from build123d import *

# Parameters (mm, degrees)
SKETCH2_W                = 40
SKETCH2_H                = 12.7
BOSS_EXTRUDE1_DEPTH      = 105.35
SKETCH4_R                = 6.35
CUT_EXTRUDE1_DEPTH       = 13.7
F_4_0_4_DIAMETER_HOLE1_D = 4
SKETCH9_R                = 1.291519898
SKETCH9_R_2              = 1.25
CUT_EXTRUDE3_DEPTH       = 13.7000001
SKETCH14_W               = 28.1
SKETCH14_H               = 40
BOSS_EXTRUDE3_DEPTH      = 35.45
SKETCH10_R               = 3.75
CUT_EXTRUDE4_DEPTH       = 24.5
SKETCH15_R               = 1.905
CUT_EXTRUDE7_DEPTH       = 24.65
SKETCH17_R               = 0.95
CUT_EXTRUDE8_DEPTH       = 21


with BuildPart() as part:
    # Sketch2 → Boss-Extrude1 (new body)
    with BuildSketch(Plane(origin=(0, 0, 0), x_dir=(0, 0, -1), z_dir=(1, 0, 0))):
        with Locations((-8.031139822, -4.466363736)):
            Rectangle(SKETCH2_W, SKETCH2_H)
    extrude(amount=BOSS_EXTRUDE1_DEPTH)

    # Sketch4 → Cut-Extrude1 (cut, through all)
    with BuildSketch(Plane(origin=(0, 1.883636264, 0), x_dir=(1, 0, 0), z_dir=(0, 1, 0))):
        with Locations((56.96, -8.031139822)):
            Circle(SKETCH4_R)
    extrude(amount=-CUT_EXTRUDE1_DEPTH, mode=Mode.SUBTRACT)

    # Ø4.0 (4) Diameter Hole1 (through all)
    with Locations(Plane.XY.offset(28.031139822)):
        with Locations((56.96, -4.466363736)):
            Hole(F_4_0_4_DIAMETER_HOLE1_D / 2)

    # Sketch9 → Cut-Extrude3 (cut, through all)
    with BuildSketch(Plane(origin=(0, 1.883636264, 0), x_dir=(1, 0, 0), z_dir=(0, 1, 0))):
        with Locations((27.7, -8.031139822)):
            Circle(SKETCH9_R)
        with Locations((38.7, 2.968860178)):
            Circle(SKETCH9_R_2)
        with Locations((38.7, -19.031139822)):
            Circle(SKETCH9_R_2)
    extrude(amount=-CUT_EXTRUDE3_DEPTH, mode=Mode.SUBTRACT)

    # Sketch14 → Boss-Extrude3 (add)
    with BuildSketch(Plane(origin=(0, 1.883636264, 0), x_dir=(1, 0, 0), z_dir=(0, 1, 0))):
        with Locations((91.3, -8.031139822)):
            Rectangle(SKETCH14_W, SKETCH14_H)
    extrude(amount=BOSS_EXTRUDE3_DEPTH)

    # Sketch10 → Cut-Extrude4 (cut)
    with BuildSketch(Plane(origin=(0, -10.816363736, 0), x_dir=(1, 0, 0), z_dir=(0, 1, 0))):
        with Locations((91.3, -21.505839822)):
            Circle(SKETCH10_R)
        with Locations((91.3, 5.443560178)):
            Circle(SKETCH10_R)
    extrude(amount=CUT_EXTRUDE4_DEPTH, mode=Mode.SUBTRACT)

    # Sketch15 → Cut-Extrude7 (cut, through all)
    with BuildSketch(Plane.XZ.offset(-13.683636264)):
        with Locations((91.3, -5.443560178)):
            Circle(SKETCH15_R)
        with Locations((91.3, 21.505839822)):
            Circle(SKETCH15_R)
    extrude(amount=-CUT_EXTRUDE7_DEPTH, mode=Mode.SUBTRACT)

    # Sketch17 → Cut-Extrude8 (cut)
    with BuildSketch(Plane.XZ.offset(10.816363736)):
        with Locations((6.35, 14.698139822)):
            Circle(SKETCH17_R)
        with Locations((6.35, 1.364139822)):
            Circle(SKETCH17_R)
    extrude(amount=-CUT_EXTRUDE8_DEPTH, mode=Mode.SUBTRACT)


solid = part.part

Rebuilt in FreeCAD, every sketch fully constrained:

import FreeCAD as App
import Part
import Sketcher
Q = App.Units.Quantity

doc = App.newDocument("Part")
body = doc.addObject("PartDesign::Body", "Body")

sketch1 = doc.addObject("Sketcher::SketchObject", "Sketch")
body.addObject(sketch1)
sketch1.AttachmentSupport = (doc.YZ_Plane, [""])
sketch1.MapMode = "FlatFace"
sketch1.addGeometry([
    Part.LineSegment(App.Vector(1.883636, 28.03114, 0), App.Vector(-10.816364, 28.03114, 0)),
    Part.LineSegment(App.Vector(-10.816364, 28.03114, 0), App.Vector(-10.816364, -11.96886, 0)),
    Part.LineSegment(App.Vector(-10.816364, -11.96886, 0), App.Vector(1.883636, -11.96886, 0)),
    Part.LineSegment(App.Vector(1.883636, -11.96886, 0), App.Vector(1.883636, 28.03114, 0)),
], False)
sketch1.addConstraint([
    Sketcher.Constraint("Coincident", 0, 2, 1, 1),
    Sketcher.Constraint("Coincident", 1, 2, 2, 1),
    Sketcher.Constraint("Coincident", 2, 2, 3, 1),
    Sketcher.Constraint("Coincident", 3, 2, 0, 1),
    Sketcher.Constraint("Horizontal", 0),
    Sketcher.Constraint("Vertical", 1),
    Sketcher.Constraint("Horizontal", 2),
    Sketcher.Constraint("Vertical", 3),
    Sketcher.Constraint("DistanceY", 1, 2, 1, 1, Q("40 mm")),
    Sketcher.Constraint("DistanceX", 0, 2, 0, 1, Q("12.7 mm")),
    Sketcher.Constraint("DistanceY", -1, 1, 0, 2, Q("28.03114 mm")),
    Sketcher.Constraint("DistanceX", 0, 2, -1, 1, Q("10.816364 mm")),
])
pad1 = doc.addObject("PartDesign::Pad", "Pad")
body.addObject(pad1)
pad1.Profile = sketch1
pad1.Length = 105.35

sketch2 = doc.addObject("Sketcher::SketchObject", "Sketch001")
body.addObject(sketch2)
sketch2.AttachmentSupport = (doc.XZ_Plane, [""])
sketch2.MapMode = "FlatFace"
sketch2.AttachmentOffset = App.Placement(App.Vector(0, 0, -1.883636), App.Rotation())
sketch2.addGeometry(Part.Circle(App.Vector(56.96, 8.03114, 0), App.Vector(0, 0, 1), 6.35), False)
sketch2.addConstraint([
    Sketcher.Constraint("Diameter", 0, Q("12.7 mm")),
    Sketcher.Constraint("DistanceX", -1, 1, 0, 3, Q("56.96 mm")),
    Sketcher.Constraint("DistanceY", -1, 1, 0, 3, Q("8.03114 mm")),
])
pocket1 = doc.addObject("PartDesign::Pocket", "Pocket")
body.addObject(pocket1)
pocket1.Profile = sketch2
pocket1.Type = "ThroughAll"
pocket1.Reversed = True

sketch3 = doc.addObject("Sketcher::SketchObject", "Sketch002")
body.addObject(sketch3)
sketch3.AttachmentSupport = (doc.XY_Plane, [""])
sketch3.MapMode = "FlatFace"
sketch3.AttachmentOffset = App.Placement(App.Vector(0, 0, 28.03114), App.Rotation())
sketch3.addGeometry(Part.Circle(App.Vector(56.96, -4.466364, 0), App.Vector(0, 0, 1), 2), False)
sketch3.addConstraint([
    Sketcher.Constraint("Diameter", 0, Q("4 mm")),
    Sketcher.Constraint("DistanceX", -1, 1, 0, 3, Q("56.96 mm")),
    Sketcher.Constraint("DistanceY", 0, 3, -1, 1, Q("4.466364 mm")),
])
doc.recompute()
hole = doc.addObject("PartDesign::Hole", "Hole")
body.addObject(hole)
hole.Profile = sketch3
hole.ThreadType = "None"
hole.Diameter = 4
hole.DepthType = "ThroughAll"

sketch4 = doc.addObject("Sketcher::SketchObject", "Sketch003")
body.addObject(sketch4)
sketch4.AttachmentSupport = (doc.XZ_Plane, [""])
sketch4.MapMode = "FlatFace"
sketch4.AttachmentOffset = App.Placement(App.Vector(0, 0, -1.883636), App.Rotation())
sketch4.addGeometry([
    Part.Circle(App.Vector(27.7, 8.03114, 0), App.Vector(0, 0, 1), 1.29152),
    Part.Circle(App.Vector(38.7, -2.96886, 0), App.Vector(0, 0, 1), 1.25),
    Part.Circle(App.Vector(38.7, 19.03114, 0), App.Vector(0, 0, 1), 1.25),
], False)
sketch4.addConstraint([
    Sketcher.Constraint("Equal", 1, 2),
    Sketcher.Constraint("Vertical", 1, 3, 2, 3),
    Sketcher.Constraint("Diameter", 1, Q("2.5 mm")),
    Sketcher.Constraint("DistanceX", 0, 3, 1, 3, Q("11 mm")),
    Sketcher.Constraint("DistanceY", 1, 3, 0, 3, Q("11 mm")),
    Sketcher.Constraint("DistanceY", 0, 3, 2, 3, Q("11 mm")),
    Sketcher.Constraint("DistanceX", -1, 1, 0, 3, Q("27.7 mm")),
    Sketcher.Constraint("Diameter", 0, Q("2.58304 mm")),
    Sketcher.Constraint("DistanceY", -1, 1, 0, 3, Q("8.03114 mm")),
])
pocket2 = doc.addObject("PartDesign::Pocket", "Pocket001")
body.addObject(pocket2)
pocket2.Profile = sketch4
pocket2.Type = "ThroughAll"
pocket2.Reversed = True

sketch5 = doc.addObject("Sketcher::SketchObject", "Sketch004")
body.addObject(sketch5)
sketch5.AttachmentSupport = (doc.XZ_Plane, [""])
sketch5.MapMode = "FlatFace"
sketch5.AttachmentOffset = App.Placement(App.Vector(0, 0, -1.883636), App.Rotation())
sketch5.addGeometry([
    Part.LineSegment(App.Vector(77.25, -11.96886, 0), App.Vector(77.25, 28.03114, 0)),
    Part.LineSegment(App.Vector(77.25, 28.03114, 0), App.Vector(105.35, 28.03114, 0)),
    Part.LineSegment(App.Vector(105.35, 28.03114, 0), App.Vector(105.35, -11.96886, 0)),
    Part.LineSegment(App.Vector(105.35, -11.96886, 0), App.Vector(77.25, -11.96886, 0)),
], False)
sketch5.addConstraint([
    Sketcher.Constraint("Coincident", 0, 2, 1, 1),
    Sketcher.Constraint("Coincident", 1, 2, 2, 1),
    Sketcher.Constraint("Coincident", 2, 2, 3, 1),
    Sketcher.Constraint("Coincident", 3, 2, 0, 1),
    Sketcher.Constraint("Vertical", 0),
    Sketcher.Constraint("Horizontal", 1),
    Sketcher.Constraint("Vertical", 2),
    Sketcher.Constraint("Horizontal", 3),
    Sketcher.Constraint("DistanceY", 0, 1, 0, 2, Q("40 mm")),
    Sketcher.Constraint("DistanceX", 1, 1, 1, 2, Q("28.1 mm")),
    Sketcher.Constraint("DistanceX", -1, 1, 0, 2, Q("77.25 mm")),
    Sketcher.Constraint("DistanceY", -1, 1, 0, 2, Q("28.03114 mm")),
])
pad2 = doc.addObject("PartDesign::Pad", "Pad001")
body.addObject(pad2)
pad2.Profile = sketch5
pad2.Length = 35.45
pad2.Reversed = True

sketch6 = doc.addObject("Sketcher::SketchObject", "Sketch005")
body.addObject(sketch6)
sketch6.AttachmentSupport = (doc.XZ_Plane, [""])
sketch6.MapMode = "FlatFace"
sketch6.AttachmentOffset = App.Placement(App.Vector(0, 0, 10.816364), App.Rotation())
sketch6.addGeometry([
    Part.Circle(App.Vector(91.3, 21.50584, 0), App.Vector(0, 0, 1), 3.75),
    Part.Circle(App.Vector(91.3, -5.44356, 0), App.Vector(0, 0, 1), 3.75),
], False)
sketch6.addConstraint([
    Sketcher.Constraint("Equal", 0, 1),
    Sketcher.Constraint("Vertical", 0, 3, 1, 3),
    Sketcher.Constraint("Diameter", 0, Q("7.5 mm")),
    Sketcher.Constraint("DistanceX", -1, 1, 0, 3, Q("91.3 mm")),
    Sketcher.Constraint("DistanceY", 1, 3, 0, 3, Q("26.9494 mm")),
    Sketcher.Constraint("DistanceY", -1, 1, 0, 3, Q("21.50584 mm")),
])
pocket3 = doc.addObject("PartDesign::Pocket", "Pocket002")
body.addObject(pocket3)
pocket3.Profile = sketch6
pocket3.Length = 24.5

sketch7 = doc.addObject("Sketcher::SketchObject", "Sketch006")
body.addObject(sketch7)
sketch7.AttachmentSupport = (doc.XZ_Plane, [""])
sketch7.MapMode = "FlatFace"
sketch7.AttachmentOffset = App.Placement(App.Vector(0, 0, -13.683636), App.Rotation())
sketch7.addGeometry([
    Part.Circle(App.Vector(91.3, -5.44356, 0), App.Vector(0, 0, 1), 1.905),
    Part.Circle(App.Vector(91.3, 21.50584, 0), App.Vector(0, 0, 1), 1.905),
], False)
sketch7.addConstraint([
    Sketcher.Constraint("Equal", 0, 1),
    Sketcher.Constraint("Vertical", 0, 3, 1, 3),
    Sketcher.Constraint("Diameter", 0, Q("3.81 mm")),
    Sketcher.Constraint("DistanceX", -1, 1, 0, 3, Q("91.3 mm")),
    Sketcher.Constraint("DistanceY", 0, 3, 1, 3, Q("26.9494 mm")),
    Sketcher.Constraint("DistanceY", 0, 3, -1, 1, Q("5.44356 mm")),
])
pocket4 = doc.addObject("PartDesign::Pocket", "Pocket003")
body.addObject(pocket4)
pocket4.Profile = sketch7
pocket4.Type = "ThroughAll"

sketch8 = doc.addObject("Sketcher::SketchObject", "Sketch007")
body.addObject(sketch8)
sketch8.AttachmentSupport = (doc.XZ_Plane, [""])
sketch8.MapMode = "FlatFace"
sketch8.AttachmentOffset = App.Placement(App.Vector(0, 0, 10.816364), App.Rotation())
sketch8.addGeometry([
    Part.Circle(App.Vector(6.35, 14.69814, 0), App.Vector(0, 0, 1), 0.95),
    Part.Circle(App.Vector(6.35, 1.36414, 0), App.Vector(0, 0, 1), 0.95),
], False)
sketch8.addConstraint([
    Sketcher.Constraint("Equal", 0, 1),
    Sketcher.Constraint("Vertical", 0, 3, 1, 3),
    Sketcher.Constraint("Diameter", 0, Q("1.9 mm")),
    Sketcher.Constraint("DistanceX", -1, 1, 0, 3, Q("6.35 mm")),
    Sketcher.Constraint("DistanceY", 1, 3, 0, 3, Q("13.334 mm")),
    Sketcher.Constraint("DistanceY", -1, 1, 0, 3, Q("14.69814 mm")),
])
pocket5 = doc.addObject("PartDesign::Pocket", "Pocket004")
body.addObject(pocket5)
pocket5.Profile = sketch8
pocket5.Length = 21

doc.recompute()
